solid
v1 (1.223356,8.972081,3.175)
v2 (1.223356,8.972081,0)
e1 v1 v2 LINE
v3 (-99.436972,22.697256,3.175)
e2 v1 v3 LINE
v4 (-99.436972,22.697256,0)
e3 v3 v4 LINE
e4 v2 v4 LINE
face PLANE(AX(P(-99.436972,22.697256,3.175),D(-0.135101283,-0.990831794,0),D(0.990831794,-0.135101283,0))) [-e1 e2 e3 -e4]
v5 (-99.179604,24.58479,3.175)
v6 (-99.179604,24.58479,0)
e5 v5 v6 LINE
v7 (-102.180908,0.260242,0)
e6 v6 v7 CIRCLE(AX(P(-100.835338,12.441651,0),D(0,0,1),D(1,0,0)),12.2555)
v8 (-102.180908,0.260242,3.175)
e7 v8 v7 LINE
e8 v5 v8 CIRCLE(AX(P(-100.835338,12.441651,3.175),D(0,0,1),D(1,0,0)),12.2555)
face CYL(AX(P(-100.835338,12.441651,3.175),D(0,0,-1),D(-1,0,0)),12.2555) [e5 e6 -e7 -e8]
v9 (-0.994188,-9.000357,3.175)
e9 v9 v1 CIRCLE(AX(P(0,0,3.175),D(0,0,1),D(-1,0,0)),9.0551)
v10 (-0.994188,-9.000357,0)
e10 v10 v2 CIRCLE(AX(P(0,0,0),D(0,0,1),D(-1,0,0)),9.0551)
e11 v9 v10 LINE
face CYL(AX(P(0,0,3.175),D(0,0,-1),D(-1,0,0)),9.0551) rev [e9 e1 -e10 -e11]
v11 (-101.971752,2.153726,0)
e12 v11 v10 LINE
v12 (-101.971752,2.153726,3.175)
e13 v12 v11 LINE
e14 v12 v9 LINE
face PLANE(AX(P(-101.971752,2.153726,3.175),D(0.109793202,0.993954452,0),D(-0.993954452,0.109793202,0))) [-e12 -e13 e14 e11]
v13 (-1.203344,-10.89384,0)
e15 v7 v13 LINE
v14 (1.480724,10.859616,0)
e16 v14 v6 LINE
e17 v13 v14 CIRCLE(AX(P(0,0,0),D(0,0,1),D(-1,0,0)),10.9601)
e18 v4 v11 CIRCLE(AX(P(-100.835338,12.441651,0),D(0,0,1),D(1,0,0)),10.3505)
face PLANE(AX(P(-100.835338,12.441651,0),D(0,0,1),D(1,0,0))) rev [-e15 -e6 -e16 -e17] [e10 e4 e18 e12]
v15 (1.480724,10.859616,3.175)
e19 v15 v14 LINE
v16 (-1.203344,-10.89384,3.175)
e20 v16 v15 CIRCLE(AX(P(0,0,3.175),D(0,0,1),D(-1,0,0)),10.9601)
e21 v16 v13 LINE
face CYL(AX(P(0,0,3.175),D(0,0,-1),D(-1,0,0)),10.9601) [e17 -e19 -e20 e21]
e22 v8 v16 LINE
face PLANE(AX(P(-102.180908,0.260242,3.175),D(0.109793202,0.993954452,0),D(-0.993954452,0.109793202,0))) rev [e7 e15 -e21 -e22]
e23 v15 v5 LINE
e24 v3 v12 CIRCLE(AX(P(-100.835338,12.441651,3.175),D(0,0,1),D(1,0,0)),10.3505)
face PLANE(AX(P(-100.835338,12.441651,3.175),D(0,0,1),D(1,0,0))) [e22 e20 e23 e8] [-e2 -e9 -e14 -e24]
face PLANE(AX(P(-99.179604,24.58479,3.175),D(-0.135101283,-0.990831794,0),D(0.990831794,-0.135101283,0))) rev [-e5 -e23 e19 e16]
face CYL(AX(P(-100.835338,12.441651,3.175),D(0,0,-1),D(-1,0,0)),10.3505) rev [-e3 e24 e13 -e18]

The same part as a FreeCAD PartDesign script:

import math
import FreeCAD as App
import Part
import Sketcher
Q = App.Units.Quantity

doc = App.newDocument("Part")
params = doc.addObject("Spreadsheet::Sheet", "Params")
for row, (alias, value) in enumerate([
    ("pad1_length", "0.125 in"),
], start=1):
    params.set(f"A{row}", alias)
    params.set(f"B{row}", "=" + value)
    params.setAlias(f"B{row}", alias)

body = doc.addObject("PartDesign::Body", "Body")

sketch1 = body.newObject("Sketcher::SketchObject", "Sketch")
sketch1.AttachmentSupport = (doc.getObject("XY_Plane"), [""])
sketch1.MapMode = "FlatFace"
sketch1.addGeometry(Part.LineSegment(App.Vector(1.480724, 10.859616, 0), App.Vector(-99.179604, 24.58479, 0)), False)
sketch1.addGeometry(Part.ArcOfCircle(Part.Circle(App.Vector(-100.835338, 12.441651, 0), App.Vector(0, 0, 1), 12.2555), math.radians(82.235523), math.radians(263.696605)), False)
sketch1.addGeometry(Part.LineSegment(App.Vector(-102.180908, 0.260242, 0), App.Vector(-1.203344, -10.89384, 0)), False)
sketch1.addGeometry(Part.ArcOfCircle(Part.Circle(App.Vector(0, 0, 0), App.Vector(0, 0, 1), 10.9601), math.radians(-96.303395), math.radians(82.235523)), False)
sketch1.addGeometry(Part.LineSegment(App.Vector(-99.436972, 22.697256, 0), App.Vector(1.223356, 8.972081, 0)), False)
sketch1.addGeometry(Part.ArcOfCircle(Part.Circle(App.Vector(0, 0, 0), App.Vector(0, 0, 1), 9.0551), math.radians(-96.303395), math.radians(82.235523)), False)
sketch1.addGeometry(Part.LineSegment(App.Vector(-0.994188, -9.000357, 0), App.Vector(-101.971752, 2.153726, 0)), False)
sketch1.addGeometry(Part.ArcOfCircle(Part.Circle(App.Vector(-100.835338, 12.441651, 0), App.Vector(0, 0, 1), 10.3505), math.radians(82.235523), math.radians(263.696605)), False)
sketch1.addConstraint(Sketcher.Constraint("Tangent", 0, 2, 1, 1))
sketch1.addConstraint(Sketcher.Constraint("Tangent", 1, 2, 2, 1))
sketch1.addConstraint(Sketcher.Constraint("Tangent", 2, 2, 3, 1))
sketch1.addConstraint(Sketcher.Constraint("Tangent", 3, 2, 0, 1))
sketch1.addConstraint(Sketcher.Constraint("Tangent", 4, 2, 5, 2))
sketch1.addConstraint(Sketcher.Constraint("Tangent", 5, 1, 6, 1))
sketch1.addConstraint(Sketcher.Constraint("Tangent", 6, 2, 7, 2))
sketch1.addConstraint(Sketcher.Constraint("Tangent", 7, 1, 4, 1))
sketch1.addConstraint(Sketcher.Constraint("Coincident", 3, 3, -1, 1))
sketch1.addConstraint(Sketcher.Constraint("Coincident", 5, 3, -1, 1))
sketch1.addConstraint(Sketcher.Constraint("Coincident", 7, 3, 1, 3))
sketch1.addConstraint(Sketcher.Constraint("Parallel", 0, 4))
sketch1.addConstraint(Sketcher.Constraint("Radius", 1, Q("0.4825 in")))
sketch1.addConstraint(Sketcher.Constraint("Radius", 3, Q("0.4315 in")))
sketch1.addConstraint(Sketcher.Constraint("Radius", 5, Q("0.3565 in")))
sketch1.addConstraint(Sketcher.Constraint("DistanceX", 2, 2, 4, 2, 2.4267))
sketch1.addConstraint(Sketcher.Constraint("Distance", 0, 101.591741))
pad1 = body.newObject("PartDesign::Pad", "Pad")
pad1.Profile = sketch1
pad1.setExpression("Length", "Params.pad1_length")

doc.recompute()
